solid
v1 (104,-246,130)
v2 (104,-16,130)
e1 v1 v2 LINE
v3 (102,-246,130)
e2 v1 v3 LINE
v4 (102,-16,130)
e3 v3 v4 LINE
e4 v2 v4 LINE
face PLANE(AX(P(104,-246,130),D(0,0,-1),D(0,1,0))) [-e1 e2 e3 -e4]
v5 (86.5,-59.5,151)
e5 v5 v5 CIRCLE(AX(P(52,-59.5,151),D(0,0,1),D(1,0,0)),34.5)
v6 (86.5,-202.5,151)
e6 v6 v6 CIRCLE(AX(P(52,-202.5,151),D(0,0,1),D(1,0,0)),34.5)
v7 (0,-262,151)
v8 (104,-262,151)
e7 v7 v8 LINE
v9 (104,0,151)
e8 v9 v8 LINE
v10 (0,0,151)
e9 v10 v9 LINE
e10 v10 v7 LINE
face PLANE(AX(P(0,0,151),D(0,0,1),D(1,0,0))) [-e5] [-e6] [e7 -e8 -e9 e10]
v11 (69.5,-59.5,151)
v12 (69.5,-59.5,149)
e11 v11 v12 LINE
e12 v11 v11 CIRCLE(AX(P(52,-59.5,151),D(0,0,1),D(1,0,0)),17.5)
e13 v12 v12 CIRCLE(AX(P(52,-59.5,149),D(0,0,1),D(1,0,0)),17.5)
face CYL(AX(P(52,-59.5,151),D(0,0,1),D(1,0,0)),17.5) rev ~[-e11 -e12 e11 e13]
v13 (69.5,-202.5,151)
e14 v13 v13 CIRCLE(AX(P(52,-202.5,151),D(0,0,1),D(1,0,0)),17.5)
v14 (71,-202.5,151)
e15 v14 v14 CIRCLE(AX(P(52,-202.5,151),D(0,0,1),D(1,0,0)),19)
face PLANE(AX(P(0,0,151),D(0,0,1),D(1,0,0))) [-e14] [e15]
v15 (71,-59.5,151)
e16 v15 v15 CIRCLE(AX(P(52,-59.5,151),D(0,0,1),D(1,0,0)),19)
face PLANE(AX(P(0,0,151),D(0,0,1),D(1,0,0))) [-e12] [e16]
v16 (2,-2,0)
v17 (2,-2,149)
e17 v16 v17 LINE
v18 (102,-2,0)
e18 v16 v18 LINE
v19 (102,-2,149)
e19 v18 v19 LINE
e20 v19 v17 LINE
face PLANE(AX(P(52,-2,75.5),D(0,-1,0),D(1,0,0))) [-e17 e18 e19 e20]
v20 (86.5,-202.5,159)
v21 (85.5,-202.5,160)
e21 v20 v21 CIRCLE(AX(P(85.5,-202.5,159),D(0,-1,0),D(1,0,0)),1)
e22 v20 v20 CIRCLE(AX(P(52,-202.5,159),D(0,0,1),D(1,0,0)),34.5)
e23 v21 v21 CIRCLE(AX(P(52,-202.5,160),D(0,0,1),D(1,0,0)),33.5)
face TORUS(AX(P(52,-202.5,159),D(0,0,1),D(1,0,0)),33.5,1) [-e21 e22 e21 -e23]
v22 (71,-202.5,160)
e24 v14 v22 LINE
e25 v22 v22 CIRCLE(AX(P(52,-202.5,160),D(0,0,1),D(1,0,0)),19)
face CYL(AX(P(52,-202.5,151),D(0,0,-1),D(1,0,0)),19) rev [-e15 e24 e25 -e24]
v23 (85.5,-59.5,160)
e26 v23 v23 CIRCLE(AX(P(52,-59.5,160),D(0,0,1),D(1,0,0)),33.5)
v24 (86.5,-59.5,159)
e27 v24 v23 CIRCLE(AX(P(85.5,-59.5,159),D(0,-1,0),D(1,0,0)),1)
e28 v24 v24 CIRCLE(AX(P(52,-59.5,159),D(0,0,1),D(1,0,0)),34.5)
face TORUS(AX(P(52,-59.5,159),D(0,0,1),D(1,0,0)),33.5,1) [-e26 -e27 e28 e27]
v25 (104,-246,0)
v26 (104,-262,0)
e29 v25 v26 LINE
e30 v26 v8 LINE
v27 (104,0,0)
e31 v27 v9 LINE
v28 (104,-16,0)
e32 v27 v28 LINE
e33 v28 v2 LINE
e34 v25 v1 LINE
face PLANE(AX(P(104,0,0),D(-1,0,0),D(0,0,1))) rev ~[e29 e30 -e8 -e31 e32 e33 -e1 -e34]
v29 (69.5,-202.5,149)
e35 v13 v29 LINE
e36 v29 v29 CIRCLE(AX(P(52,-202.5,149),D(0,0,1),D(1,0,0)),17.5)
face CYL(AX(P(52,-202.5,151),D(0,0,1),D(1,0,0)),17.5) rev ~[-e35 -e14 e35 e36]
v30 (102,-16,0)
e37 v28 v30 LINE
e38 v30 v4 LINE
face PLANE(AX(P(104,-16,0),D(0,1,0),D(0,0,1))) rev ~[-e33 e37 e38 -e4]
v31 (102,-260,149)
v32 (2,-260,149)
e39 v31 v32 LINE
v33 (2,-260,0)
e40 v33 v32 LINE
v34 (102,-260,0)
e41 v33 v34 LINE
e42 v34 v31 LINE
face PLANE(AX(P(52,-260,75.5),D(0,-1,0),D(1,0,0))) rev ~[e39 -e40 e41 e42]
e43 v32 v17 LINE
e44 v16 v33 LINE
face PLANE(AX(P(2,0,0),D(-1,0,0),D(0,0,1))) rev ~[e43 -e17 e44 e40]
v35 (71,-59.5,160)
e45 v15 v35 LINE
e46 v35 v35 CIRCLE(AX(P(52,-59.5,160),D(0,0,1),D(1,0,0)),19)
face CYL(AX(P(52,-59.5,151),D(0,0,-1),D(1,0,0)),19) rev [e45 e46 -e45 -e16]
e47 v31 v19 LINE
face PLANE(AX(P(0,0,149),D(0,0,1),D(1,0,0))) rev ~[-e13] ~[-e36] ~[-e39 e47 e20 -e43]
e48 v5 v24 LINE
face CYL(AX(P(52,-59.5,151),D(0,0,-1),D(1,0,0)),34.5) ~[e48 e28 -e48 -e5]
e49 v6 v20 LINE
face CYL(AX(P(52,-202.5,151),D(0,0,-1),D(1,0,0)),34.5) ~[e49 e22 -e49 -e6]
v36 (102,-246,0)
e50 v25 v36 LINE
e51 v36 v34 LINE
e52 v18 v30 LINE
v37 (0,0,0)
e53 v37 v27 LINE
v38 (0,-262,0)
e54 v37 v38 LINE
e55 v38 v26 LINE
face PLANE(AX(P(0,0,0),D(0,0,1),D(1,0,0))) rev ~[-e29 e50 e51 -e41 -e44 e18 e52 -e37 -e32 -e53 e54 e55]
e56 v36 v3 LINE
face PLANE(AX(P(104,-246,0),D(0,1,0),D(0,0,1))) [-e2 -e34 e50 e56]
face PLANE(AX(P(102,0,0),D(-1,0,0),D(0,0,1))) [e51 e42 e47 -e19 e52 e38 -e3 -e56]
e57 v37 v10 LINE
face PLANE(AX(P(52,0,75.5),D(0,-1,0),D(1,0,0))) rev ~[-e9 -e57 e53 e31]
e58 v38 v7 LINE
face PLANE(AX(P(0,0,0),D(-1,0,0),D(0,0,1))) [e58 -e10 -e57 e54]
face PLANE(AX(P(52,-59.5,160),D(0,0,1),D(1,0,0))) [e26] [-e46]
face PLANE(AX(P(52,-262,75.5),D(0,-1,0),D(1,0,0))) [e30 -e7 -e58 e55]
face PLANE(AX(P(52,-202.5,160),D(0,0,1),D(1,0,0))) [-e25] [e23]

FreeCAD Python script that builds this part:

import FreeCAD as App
import Part
import Sketcher

V = App.Vector


def edges_at(feature, points):
    """Names of the edges that pass closest to the given points."""
    edges = feature.Shape.Edges
    near = lambda p: min(range(len(edges)), key=lambda i: edges[i].distToShape(Part.Vertex(*p))[0])
    return sorted({f"Edge{near(p) + 1}" for p in points})


def faces_at(feature, points):
    """Names of the faces that lie closest to the given points."""
    faces = feature.Shape.Faces
    near = lambda p: min(range(len(faces)), key=lambda i: faces[i].distToShape(Part.Vertex(*p))[0])
    return sorted({f"Face{near(p) + 1}" for p in points})

doc = App.newDocument("Part")
body = doc.addObject("PartDesign::Body", "Body")

# Sketch on XZ plane
sketch1 = doc.addObject("Sketcher::SketchObject", "Sketch")
body.addObject(sketch1)
sketch1.AttachmentSupport = (doc.XZ_Plane, [""])
sketch1.MapMode = "FlatFace"
sketch1.addGeometry([
    Part.LineSegment(V(0, 151, 0), V(0, 0, 0)),
    Part.LineSegment(V(0, 0, 0), V(104, 0, 0)),
    Part.LineSegment(V(104, 0, 0), V(104, 151, 0)),
    Part.LineSegment(V(104, 151, 0), V(0, 151, 0)),
], False)
sketch1.addConstraint([
    Sketcher.Constraint("Coincident", 0, 2, 1, 1),
    Sketcher.Constraint("Coincident", 1, 2, 2, 1),
    Sketcher.Constraint("Coincident", 2, 2, 3, 1),
    Sketcher.Constraint("Coincident", 3, 2, 0, 1),
    Sketcher.Constraint("Vertical", 0),
    Sketcher.Constraint("Horizontal", 1),
    Sketcher.Constraint("Vertical", 2),
    Sketcher.Constraint("Horizontal", 3),
    Sketcher.Constraint("Coincident", 0, 2, -1, 1),
    Sketcher.Constraint("DistanceX", 1, 1, 1, 2, 104.0),
    Sketcher.Constraint("DistanceY", 0, 2, 0, 1, 151.0),
])
pad1 = doc.addObject("PartDesign::Pad", "Pad")
body.addObject(pad1)
pad1.Profile = sketch1
pad1.Length = 262
doc.recompute()

thickness = doc.addObject("PartDesign::Thickness", "Thickness")
body.addObject(thickness)
thickness.Base = (pad1, faces_at(pad1, [(52, -131, 0)]))
thickness.Value = 2
thickness.Reversed = True
thickness.Join = "Arc"

# Sketch on YZ plane
sketch2 = doc.addObject("Sketcher::SketchObject", "Sketch001")
body.addObject(sketch2)
sketch2.AttachmentSupport = (doc.YZ_Plane, [""])
sketch2.MapMode = "FlatFace"
sketch2.AttachmentOffset = App.Placement(V(0, 0, 104), App.Rotation())
sketch2.addGeometry([
    Part.LineSegment(V(-246, 130, 0), V(-246, 0, 0)),
    Part.LineSegment(V(-246, 0, 0), V(-16, 0, 0)),
    Part.LineSegment(V(-16, 0, 0), V(-16, 130, 0)),
    Part.LineSegment(V(-16, 130, 0), V(-246, 130, 0)),
], False)
sketch2.addConstraint([
    Sketcher.Constraint("Coincident", 0, 2, 1, 1),
    Sketcher.Constraint("Coincident", 1, 2, 2, 1),
    Sketcher.Constraint("Coincident", 2, 2, 3, 1),
    Sketcher.Constraint("Coincident", 3, 2, 0, 1),
    Sketcher.Constraint("Vertical", 0),
    Sketcher.Constraint("Horizontal", 1),
    Sketcher.Constraint("Vertical", 2),
    Sketcher.Constraint("Horizontal", 3),
    Sketcher.Constraint("PointOnObject", 0, 2, -1),
    Sketcher.Constraint("DistanceX", 1, 1, 1, 2, 230.0),
    Sketcher.Constraint("DistanceY", 0, 2, 0, 1, 130.0),
    Sketcher.Constraint("DistanceX", 0, 2, -1, 1, 246.0),
])
pocket1 = doc.addObject("PartDesign::Pocket", "Pocket")
body.addObject(pocket1)
pocket1.Profile = sketch2
pocket1.Length = 2

# Sketch on XY plane
sketch3 = doc.addObject("Sketcher::SketchObject", "Sketch002")
body.addObject(sketch3)
sketch3.AttachmentSupport = (doc.XY_Plane, [""])
sketch3.MapMode = "FlatFace"
sketch3.AttachmentOffset = App.Placement(V(0, 0, 151), App.Rotation())
sketch3.addGeometry([
    Part.Circle(V(52, -60, 0), V(0, 0, 1), 18),
    Part.Circle(V(52, -202, 0), V(0, 0, 1), 18),
], False)
sketch3.addConstraint([
    Sketcher.Constraint("Equal", 0, 1),
    Sketcher.Constraint("Vertical", 0, 3, 1, 3),
    Sketcher.Constraint("Diameter", 0, 35.0),
    Sketcher.Constraint("DistanceX", -1, 1, 0, 3, 52.0),
    Sketcher.Constraint("DistanceY", 1, 3, 0, 3, 143.0),
    Sketcher.Constraint("DistanceY", 0, 3, -1, 1, 59.5),
])
pocket2 = doc.addObject("PartDesign::Pocket", "Pocket001")
body.addObject(pocket2)
pocket2.Profile = sketch3
pocket2.Length = 25

# Sketch on XY plane
sketch4 = doc.addObject("Sketcher::SketchObject", "Sketch003")
body.addObject(sketch4)
sketch4.AttachmentSupport = (doc.XY_Plane, [""])
sketch4.MapMode = "FlatFace"
sketch4.AttachmentOffset = App.Placement(V(0, 0, 151), App.Rotation())
sketch4.addGeometry([
    Part.Circle(V(52, -60, 0), V(0, 0, 1), 34),
    Part.Circle(V(52, -60, 0), V(0, 0, 1), 19),
    Part.Circle(V(52, -202, 0), V(0, 0, 1), 34),
    Part.Circle(V(52, -202, 0), V(0, 0, 1), 19),
], False)
sketch4.addConstraint([
    Sketcher.Constraint("Coincident", 1, 3, 0, 3),
    Sketcher.Constraint("Coincident", 3, 3, 2, 3),
    Sketcher.Constraint("Equal", 0, 2),
    Sketcher.Constraint("Equal", 1, 3),
    Sketcher.Constraint("Vertical", 1, 3, 2, 3),
    Sketcher.Constraint("Diameter", 0, 69.0),
    Sketcher.Constraint("Diameter", 1, 38.0),
    Sketcher.Constraint("DistanceX", -1, 1, 0, 3, 52.0),
    Sketcher.Constraint("DistanceY", 2, 3, 0, 3, 143.0),
    Sketcher.Constraint("DistanceY", 0, 3, -1, 1, 59.5),
])
pad2 = doc.addObject("PartDesign::Pad", "Pad001")
body.addObject(pad2)
pad2.Profile = sketch4
pad2.Length = 9
doc.recompute()

fillet = doc.addObject("PartDesign::Fillet", "Fillet")
body.addObject(fillet)
fillet.Base = (pad2, edges_at(pad2, [(17.5, -59.5, 160), (17.5, -202.5, 160)]))
fillet.Radius = 1

doc.recompute()
